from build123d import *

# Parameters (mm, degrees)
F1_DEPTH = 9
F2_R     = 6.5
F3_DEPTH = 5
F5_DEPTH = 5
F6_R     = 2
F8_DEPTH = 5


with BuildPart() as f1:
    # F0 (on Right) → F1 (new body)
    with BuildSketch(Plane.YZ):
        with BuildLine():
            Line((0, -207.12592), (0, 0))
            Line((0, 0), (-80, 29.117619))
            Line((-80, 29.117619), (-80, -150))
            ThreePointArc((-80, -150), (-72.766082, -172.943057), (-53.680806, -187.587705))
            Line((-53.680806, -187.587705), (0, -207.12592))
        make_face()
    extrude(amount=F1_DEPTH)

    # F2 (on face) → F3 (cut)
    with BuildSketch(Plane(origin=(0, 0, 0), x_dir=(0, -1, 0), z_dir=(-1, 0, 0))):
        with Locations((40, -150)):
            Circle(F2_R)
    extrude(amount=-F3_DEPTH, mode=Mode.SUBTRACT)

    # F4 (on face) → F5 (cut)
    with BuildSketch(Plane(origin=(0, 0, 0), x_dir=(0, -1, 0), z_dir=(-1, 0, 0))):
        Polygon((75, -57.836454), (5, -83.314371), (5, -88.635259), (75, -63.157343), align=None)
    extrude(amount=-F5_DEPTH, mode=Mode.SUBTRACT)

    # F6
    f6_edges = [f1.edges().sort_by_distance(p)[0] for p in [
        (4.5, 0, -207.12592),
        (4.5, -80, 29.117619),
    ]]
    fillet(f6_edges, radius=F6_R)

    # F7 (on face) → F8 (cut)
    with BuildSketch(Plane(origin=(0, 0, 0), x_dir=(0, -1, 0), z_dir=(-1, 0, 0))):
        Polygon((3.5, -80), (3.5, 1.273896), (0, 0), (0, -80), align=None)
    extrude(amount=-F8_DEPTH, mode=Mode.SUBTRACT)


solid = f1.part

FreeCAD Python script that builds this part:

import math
import FreeCAD as App
import Part
import Sketcher
Q = App.Units.Quantity


def edges_at(feature, points):
    """Names of the edges that pass closest to the given points."""
    edges = feature.Shape.Edges
    near = lambda p: min(range(len(edges)), key=lambda i: edges[i].distToShape(Part.Vertex(*p))[0])
    return sorted({f"Edge{near(p) + 1}" for p in points})

doc = App.newDocument("Part")
body = doc.addObject("PartDesign::Body", "Body")

# Sketch on YZ plane
sketch1 = body.newObject("Sketcher::SketchObject", "Sketch")
sketch1.AttachmentSupport = (doc.getObject("YZ_Plane"), [""])
sketch1.MapMode = "FlatFace"
sketch1.addGeometry([
    Part.LineSegment(App.Vector(0, -207.12592, 0), App.Vector(0, 0, 0)),  # 0
    Part.LineSegment(App.Vector(0, 0, 0), App.Vector(-80, 29.117619, 0)),  # 1
    Part.LineSegment(App.Vector(-80, 29.117619, 0), App.Vector(-80, -150, 0)),  # 2
    Part.ArcOfCircle(Part.Circle(App.Vector(-39.999999, -150, 0), App.Vector(0, 0, 1), 40.000001), math.radians(-179.999999), math.radians(-110.000001)),  # 3
    Part.LineSegment(App.Vector(-53.680806, -187.587705, 0), App.Vector(0, -207.12592, 0)),  # 4
], False)
sketch1.addConstraint([
    Sketcher.Constraint("Coincident", 0, 2, 1, 1),
    Sketcher.Constraint("Coincident", 1, 2, 2, 1),
    Sketcher.Constraint("Tangent", 2, 2, 3, 1),
    Sketcher.Constraint("Tangent", 3, 2, 4, 1),
    Sketcher.Constraint("Coincident", 4, 2, 0, 1),
    Sketcher.Constraint("Vertical", 0),
    Sketcher.Constraint("Vertical", 2),
    Sketcher.Constraint("Coincident", 0, 2, -1, 1),
    Sketcher.Constraint("Parallel", 1, 4),
    Sketcher.Constraint("Radius", 3, Q("40.000001 mm")),
    Sketcher.Constraint("Angle", 1, Q("160 deg")),
    Sketcher.Constraint("DistanceX", 3, 3, -1, 1, Q("39.999999 mm")),
    Sketcher.Constraint("DistanceY", 3, 3, -1, 1, Q("150 mm")),
])
pad1 = body.newObject("PartDesign::Pad", "Pad")
pad1.Profile = sketch1
pad1.Length = 9

# Sketch on YZ plane
sketch2 = body.newObject("Sketcher::SketchObject", "Sketch001")
sketch2.AttachmentSupport = (doc.getObject("YZ_Plane"), [""])
sketch2.MapMode = "FlatFace"
sketch2.addGeometry(Part.Circle(App.Vector(-40, -150, 0), App.Vector(0, 0, 1), 6.5), False)
sketch2.addConstraint([
    Sketcher.Constraint("Diameter", 0, Q("13 mm")),
    Sketcher.Constraint("DistanceX", 0, 3, -1, 1, Q("40 mm")),
    Sketcher.Constraint("DistanceY", 0, 3, -1, 1, Q("150 mm")),
])
pocket1 = body.newObject("PartDesign::Pocket", "Pocket")
pocket1.Profile = sketch2
pocket1.Length = 5
pocket1.Reversed = True

# Sketch on YZ plane
sketch3 = body.newObject("Sketcher::SketchObject", "Sketch002")
sketch3.AttachmentSupport = (doc.getObject("YZ_Plane"), [""])
sketch3.MapMode = "FlatFace"
sketch3.addGeometry([
    Part.LineSegment(App.Vector(-75, -57.836454, 0), App.Vector(-5, -83.314371, 0)),
    Part.LineSegment(App.Vector(-5, -83.314371, 0), App.Vector(-5, -88.635259, 0)),
    Part.LineSegment(App.Vector(-5, -88.635259, 0), App.Vector(-75, -63.157343, 0)),
    Part.LineSegment(App.Vector(-75, -63.157343, 0), App.Vector(-75, -57.836454, 0)),
], False)
sketch3.addConstraint([
    Sketcher.Constraint("Coincident", 0, 2, 1, 1),
    Sketcher.Constraint("Coincident", 1, 2, 2, 1),
    Sketcher.Constraint("Coincident", 2, 2, 3, 1),
    Sketcher.Constraint("Coincident", 3, 2, 0, 1),
    Sketcher.Constraint("Vertical", 1),
    Sketcher.Constraint("Vertical", 3),
    Sketcher.Constraint("Parallel", 0, 2),
    Sketcher.Constraint("Angle", 0, Q("-20 deg")),
    Sketcher.Constraint("DistanceX", 0, 2, -1, 1, Q("5 mm")),
    Sketcher.Constraint("DistanceX", 2, 2, -1, 1, Q("75 mm")),
    Sketcher.Constraint("DistanceY", 1, 2, 1, 1, Q("5.320888 mm")),
    Sketcher.Constraint("DistanceY", 0, 2, -1, 1, Q("83.314371 mm")),
])
pocket2 = body.newObject("PartDesign::Pocket", "Pocket001")
pocket2.Profile = sketch3
pocket2.Length = 5
pocket2.Reversed = True
doc.recompute()

fillet = body.newObject("PartDesign::Fillet", "Fillet")
fillet.Base = (pocket2, edges_at(pocket2, [(4.5, 0, -207.126), (4.5, -80, 29.118)]))
fillet.Radius = 2

# Sketch on YZ plane
sketch4 = body.newObject("Sketcher::SketchObject", "Sketch003")
sketch4.AttachmentSupport = (doc.getObject("YZ_Plane"), [""])
sketch4.MapMode = "FlatFace"
sketch4.addGeometry([
    Part.LineSegment(App.Vector(-3.5, -80, 0), App.Vector(-3.5, 1.273896, 0)),
    Part.LineSegment(App.Vector(-3.5, 1.273896, 0), App.Vector(0, 0, 0)),
    Part.LineSegment(App.Vector(0, 0, 0), App.Vector(0, -80, 0)),
    Part.LineSegment(App.Vector(0, -80, 0), App.Vector(-3.5, -80, 0)),
], False)
sketch4.addConstraint([
    Sketcher.Constraint("Coincident", 0, 2, 1, 1),
    Sketcher.Constraint("Coincident", 1, 2, 2, 1),
    Sketcher.Constraint("Coincident", 2, 2, 3, 1),
    Sketcher.Constraint("Coincident", 3, 2, 0, 1),
    Sketcher.Constraint("Vertical", 0),
    Sketcher.Constraint("Vertical", 2),
    Sketcher.Constraint("Horizontal", 3),
    Sketcher.Constraint("Coincident", 1, 2, -1, 1),
    Sketcher.Constraint("DistanceY", 2, 2, 2, 1, Q("80 mm")),
    Sketcher.Constraint("Angle", 1, Q("-20.000003 deg")),
    Sketcher.Constraint("DistanceX", 3, 2, 3, 1, Q("3.5 mm")),
])
pocket3 = body.newObject("PartDesign::Pocket", "Pocket002")
pocket3.Profile = sketch4
pocket3.Length = 5
pocket3.Reversed = True

doc.recompute()
